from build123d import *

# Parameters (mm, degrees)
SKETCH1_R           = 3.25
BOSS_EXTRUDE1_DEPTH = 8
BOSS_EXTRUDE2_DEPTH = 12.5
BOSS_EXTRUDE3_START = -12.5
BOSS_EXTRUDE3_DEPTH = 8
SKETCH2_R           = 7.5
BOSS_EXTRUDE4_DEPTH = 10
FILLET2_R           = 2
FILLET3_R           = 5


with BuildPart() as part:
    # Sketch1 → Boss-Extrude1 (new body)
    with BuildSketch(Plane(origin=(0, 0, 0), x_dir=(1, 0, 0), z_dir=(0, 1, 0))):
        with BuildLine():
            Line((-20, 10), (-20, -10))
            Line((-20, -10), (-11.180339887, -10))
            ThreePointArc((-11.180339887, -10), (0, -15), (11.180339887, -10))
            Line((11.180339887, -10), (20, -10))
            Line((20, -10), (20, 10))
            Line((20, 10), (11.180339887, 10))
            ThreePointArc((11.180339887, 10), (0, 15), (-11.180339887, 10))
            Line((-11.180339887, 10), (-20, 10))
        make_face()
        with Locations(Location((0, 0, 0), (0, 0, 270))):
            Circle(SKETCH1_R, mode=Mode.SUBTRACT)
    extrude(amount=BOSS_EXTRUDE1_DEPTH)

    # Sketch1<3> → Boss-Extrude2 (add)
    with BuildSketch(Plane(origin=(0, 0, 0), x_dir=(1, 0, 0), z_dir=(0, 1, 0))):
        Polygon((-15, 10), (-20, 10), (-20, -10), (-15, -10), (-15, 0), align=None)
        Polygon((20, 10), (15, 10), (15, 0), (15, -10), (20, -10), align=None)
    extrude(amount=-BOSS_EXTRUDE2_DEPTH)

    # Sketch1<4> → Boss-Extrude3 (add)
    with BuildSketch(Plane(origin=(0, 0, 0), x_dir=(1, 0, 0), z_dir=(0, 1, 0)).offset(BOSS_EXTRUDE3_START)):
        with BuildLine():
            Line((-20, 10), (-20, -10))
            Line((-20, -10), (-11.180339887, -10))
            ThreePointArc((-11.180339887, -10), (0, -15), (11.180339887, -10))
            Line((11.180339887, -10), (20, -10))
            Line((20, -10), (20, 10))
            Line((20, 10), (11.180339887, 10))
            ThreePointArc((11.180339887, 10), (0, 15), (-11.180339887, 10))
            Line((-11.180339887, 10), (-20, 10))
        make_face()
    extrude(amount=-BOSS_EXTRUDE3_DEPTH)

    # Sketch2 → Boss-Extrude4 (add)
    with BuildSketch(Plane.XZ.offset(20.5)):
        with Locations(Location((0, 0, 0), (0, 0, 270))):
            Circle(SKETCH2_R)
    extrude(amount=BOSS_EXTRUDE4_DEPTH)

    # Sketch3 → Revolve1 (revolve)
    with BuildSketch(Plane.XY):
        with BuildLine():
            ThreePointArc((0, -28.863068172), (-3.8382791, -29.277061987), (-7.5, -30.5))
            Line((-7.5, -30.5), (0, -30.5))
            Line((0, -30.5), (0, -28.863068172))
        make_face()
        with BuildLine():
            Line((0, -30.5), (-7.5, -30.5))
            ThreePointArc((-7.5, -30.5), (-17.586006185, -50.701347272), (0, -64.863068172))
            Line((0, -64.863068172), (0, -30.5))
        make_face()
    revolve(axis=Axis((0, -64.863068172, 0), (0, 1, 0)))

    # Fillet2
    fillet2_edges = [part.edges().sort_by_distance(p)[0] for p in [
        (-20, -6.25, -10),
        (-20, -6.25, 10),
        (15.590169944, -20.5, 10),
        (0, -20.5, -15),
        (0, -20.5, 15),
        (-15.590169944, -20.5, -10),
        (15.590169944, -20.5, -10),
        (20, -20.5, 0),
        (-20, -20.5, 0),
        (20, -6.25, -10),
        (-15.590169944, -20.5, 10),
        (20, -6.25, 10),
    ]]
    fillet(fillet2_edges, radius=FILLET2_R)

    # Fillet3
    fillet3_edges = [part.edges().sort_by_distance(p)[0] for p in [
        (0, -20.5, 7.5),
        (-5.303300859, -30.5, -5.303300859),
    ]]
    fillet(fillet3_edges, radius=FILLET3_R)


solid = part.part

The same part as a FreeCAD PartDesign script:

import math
import FreeCAD as App
import Part
import Sketcher
from FreeCAD import Vector
Q = App.Units.Quantity


def edges_at(feature, points):
    """Names of the edges that pass closest to the given points."""
    edges = feature.Shape.Edges
    near = lambda p: min(range(len(edges)), key=lambda i: edges[i].distToShape(Part.Vertex(*p))[0])
    return sorted({f"Edge{near(p) + 1}" for p in points})


def add_polygon(sketch, points):
    """Adds a closed chain of lines whose ends are joined by coincident constraints."""
    first, n = sketch.GeometryCount, len(points)
    for a, b in zip(points, points[1:] + points[:1]):
        sketch.addGeometry(Part.LineSegment(App.Vector(*a, 0), App.Vector(*b, 0)), False)
    for i in range(n):
        sketch.addConstraint(Sketcher.Constraint("Coincident", first + i, 2, first + (i + 1) % n, 1))

doc = App.newDocument("Part")
body = doc.addObject("PartDesign::Body", "Body")

sketch1 = doc.addObject("Sketcher::SketchObject", "Sketch")
body.addObject(sketch1)
sketch1.AttachmentSupport = (doc.XZ_Plane, [""])
sketch1.MapMode = "FlatFace"
sketch1.addGeometry([
    Part.LineSegment(Vector(-20, -10, 0), Vector(-20, 10, 0)),
    Part.LineSegment(Vector(-20, 10, 0), Vector(-11.2, 10, 0)),
    Part.ArcOfCircle(Part.Circle(Vector(0, 0, 0), Vector(0, 0, 1), 15), math.radians(42), math.radians(138)),
    Part.LineSegment(Vector(11.2, 10, 0), Vector(20, 10, 0)),
    Part.LineSegment(Vector(20, 10, 0), Vector(20, -10, 0)),
    Part.LineSegment(Vector(20, -10, 0), Vector(11.2, -10, 0)),
    Part.ArcOfCircle(Part.Circle(Vector(0, 0, 0), Vector(0, 0, 1), 15), math.radians(-138), math.radians(-42)),
    Part.LineSegment(Vector(-11.2, -10, 0), Vector(-20, -10, 0)),
    Part.Circle(Vector(0, 0, 0), Vector(0, 0, 1), 3.2),
], False)
sketch1.addConstraint([
    Sketcher.Constraint("Coincident", 0, 2, 1, 1),
    Sketcher.Constraint("Coincident", 1, 2, 2, 2),
    Sketcher.Constraint("Coincident", 2, 1, 3, 1),
    Sketcher.Constraint("Coincident", 3, 2, 4, 1),
    Sketcher.Constraint("Coincident", 4, 2, 5, 1),
    Sketcher.Constraint("Coincident", 5, 2, 6, 2),
    Sketcher.Constraint("Coincident", 6, 1, 7, 1),
    Sketcher.Constraint("Coincident", 7, 2, 0, 1),
    Sketcher.Constraint("Vertical", 0),
    Sketcher.Constraint("Horizontal", 1),
    Sketcher.Constraint("Horizontal", 3),
    Sketcher.Constraint("Vertical", 4),
    Sketcher.Constraint("Horizontal", 5),
    Sketcher.Constraint("Horizontal", 7),
    Sketcher.Constraint("Coincident", 2, 3, -1, 1),
    Sketcher.Constraint("Coincident", 6, 3, -1, 1),
    Sketcher.Constraint("Coincident", 8, 3, -1, 1),
    Sketcher.Constraint("Equal", 2, 6),
    Sketcher.Constraint("Symmetric", 0, 2, 4, 2, -1, 1),
    Sketcher.Constraint("Horizontal", 1, 2, 2, 1),
    Sketcher.Constraint("Horizontal", 5, 2, 6, 1),
    Sketcher.Constraint("Radius", 2, Q("15 mm")),
    Sketcher.Constraint("Diameter", 8, Q("6.5 mm")),
    Sketcher.Constraint("DistanceY", 0, 1, 0, 2, Q("20 mm")),
    Sketcher.Constraint("DistanceX", 0, 2, -1, 1, Q("20 mm")),
])
pad1 = doc.addObject("PartDesign::Pad", "Pad")
body.addObject(pad1)
pad1.Profile = sketch1
pad1.Length = 8
pad1.Reversed = True

sketch2 = doc.addObject("Sketcher::SketchObject", "Sketch001")
body.addObject(sketch2)
sketch2.AttachmentSupport = (doc.XZ_Plane, [""])
sketch2.MapMode = "FlatFace"
add_polygon(sketch2, [(-15, -10), (-20, -10), (-20, 10), (-15, 10)])
add_polygon(sketch2, [(20, -10), (15, -10), (15, 10), (20, 10)])
sketch2.addConstraint([
    Sketcher.Constraint("Horizontal", 0),
    Sketcher.Constraint("Vertical", 1),
    Sketcher.Constraint("Horizontal", 2),
    Sketcher.Constraint("Vertical", 3),
    Sketcher.Constraint("Horizontal", 4),
    Sketcher.Constraint("Vertical", 5),
    Sketcher.Constraint("Horizontal", 6),
    Sketcher.Constraint("Vertical", 7),
    Sketcher.Constraint("Symmetric", 2, 2, 4, 2, -1, 1),
    Sketcher.Constraint("Symmetric", 0, 2, 6, 2, -1, 1),
    Sketcher.Constraint("Horizontal", 3, 2, 4, 2),
    Sketcher.Constraint("DistanceX", 0, 2, 0, 1, Q("5 mm")),
    Sketcher.Constraint("DistanceY", 1, 1, 1, 2, Q("20 mm")),
    Sketcher.Constraint("DistanceX", 0, 2, -1, 1, Q("20 mm")),
])
pad2 = doc.addObject("PartDesign::Pad", "Pad001")
body.addObject(pad2)
pad2.Profile = sketch2
pad2.Length = 12.5

sketch3 = doc.addObject("Sketcher::SketchObject", "Sketch002")
body.addObject(sketch3)
sketch3.AttachmentSupport = (doc.XZ_Plane, [""])
sketch3.MapMode = "FlatFace"
sketch3.AttachmentOffset = App.Placement(Vector(0, 0, 12.5), App.Rotation())
sketch3.addGeometry([
    Part.LineSegment(Vector(-20, -10, 0), Vector(-20, 10, 0)),
    Part.LineSegment(Vector(-20, 10, 0), Vector(-11, 10, 0)),
    Part.ArcOfCircle(Part.Circle(Vector(0, 0, 0), Vector(0, 0, 1), 15), math.radians(42), math.radians(138)),
    Part.LineSegment(Vector(11, 10, 0), Vector(20, 10, 0)),
    Part.LineSegment(Vector(20, 10, 0), Vector(20, -10, 0)),
    Part.LineSegment(Vector(20, -10, 0), Vector(11, -10, 0)),
    Part.ArcOfCircle(Part.Circle(Vector(0, 0, 0), Vector(0, 0, 1), 15), math.radians(-138), math.radians(-42)),
    Part.LineSegment(Vector(-11, -10, 0), Vector(-20, -10, 0)),
], False)
sketch3.addConstraint([
    Sketcher.Constraint("Coincident", 0, 2, 1, 1),
    Sketcher.Constraint("Coincident", 1, 2, 2, 2),
    Sketcher.Constraint("Coincident", 2, 1, 3, 1),
    Sketcher.Constraint("Coincident", 3, 2, 4, 1),
    Sketcher.Constraint("Coincident", 4, 2, 5, 1),
    Sketcher.Constraint("Coincident", 5, 2, 6, 2),
    Sketcher.Constraint("Coincident", 6, 1, 7, 1),
    Sketcher.Constraint("Coincident", 7, 2, 0, 1),
    Sketcher.Constraint("Vertical", 0),
    Sketcher.Constraint("Horizontal", 1),
    Sketcher.Constraint("Horizontal", 3),
    Sketcher.Constraint("Vertical", 4),
    Sketcher.Constraint("Horizontal", 5),
    Sketcher.Constraint("Horizontal", 7),
    Sketcher.Constraint("Coincident", 2, 3, -1, 1),
    Sketcher.Constraint("Coincident", 6, 3, -1, 1),
    Sketcher.Constraint("Equal", 2, 6),
    Sketcher.Constraint("Symmetric", 0, 2, 4, 2, -1, 1),
    Sketcher.Constraint("Horizontal", 1, 2, 2, 1),
    Sketcher.Constraint("Horizontal", 5, 2, 6, 1),
    Sketcher.Constraint("Radius", 2, Q("15 mm")),
    Sketcher.Constraint("DistanceY", 0, 1, 0, 2, Q("20 mm")),
    Sketcher.Constraint("DistanceX", 0, 2, -1, 1, Q("20 mm")),
])
pad3 = doc.addObject("PartDesign::Pad", "Pad002")
body.addObject(pad3)
pad3.Profile = sketch3
pad3.Length = 8

sketch4 = doc.addObject("Sketcher::SketchObject", "Sketch003")
body.addObject(sketch4)
sketch4.AttachmentSupport = (doc.XZ_Plane, [""])
sketch4.MapMode = "FlatFace"
sketch4.AttachmentOffset = App.Placement(Vector(0, 0, 20.5), App.Rotation())
sketch4.addGeometry(Part.Circle(Vector(0, 0, 0), Vector(0, 0, 1), 8), False)
sketch4.addConstraint([
    Sketcher.Constraint("Coincident", 0, 3, -1, 1),
    Sketcher.Constraint("Diameter", 0, Q("15 mm")),
])
pad4 = doc.addObject("PartDesign::Pad", "Pad003")
body.addObject(pad4)
pad4.Profile = sketch4
pad4.Length = 10

sketch5 = doc.addObject("Sketcher::SketchObject", "Sketch004")
body.addObject(sketch5)
sketch5.AttachmentSupport = (doc.XY_Plane, [""])
sketch5.MapMode = "FlatFace"
sketch5.addGeometry([
    Part.ArcOfCircle(Part.Circle(Vector(0, -47, 0), Vector(0, 0, 1), 18), math.radians(90), math.radians(115)),
    Part.ArcOfCircle(Part.Circle(Vector(0, -47, 0), Vector(0, 0, 1), 18), math.radians(115), math.radians(270)),
    Part.LineSegment(Vector(0, -65, 0), Vector(0, -29, 0)),
], False)
sketch5.addConstraint([
    Sketcher.Constraint("Tangent", 0, 2, 1, 1),
    Sketcher.Constraint("Coincident", 1, 2, 2, 1),
    Sketcher.Constraint("Coincident", 2, 2, 0, 1),
    Sketcher.Constraint("Vertical", 2),
    Sketcher.Constraint("Equal", 0, 1),
    Sketcher.Constraint("PointOnObject", 0, 3, -2),
    Sketcher.Constraint("PointOnObject", 1, 2, -2),
    Sketcher.Constraint("Radius", 0, Q("18 mm")),
    Sketcher.Constraint("DistanceX", 0, 2, -1, 1, Q("7.5 mm")),
    Sketcher.Constraint("DistanceY", 0, 2, -1, 1, Q("30.5 mm")),
])
revolution = doc.addObject("PartDesign::Revolution", "Revolution")
body.addObject(revolution)
revolution.Profile = sketch5
revolution.ReferenceAxis = (sketch5, ["V_Axis"])
revolution.Angle = 360
doc.recompute()

fillet = doc.addObject("PartDesign::Fillet", "Fillet")
body.addObject(fillet)
fillet.Base = (revolution, edges_at(revolution, [
    (-20, -6.25, -10),
    (-20, -6.25, 10),
    (15.59, -20.5, 10),
    (0, -20.5, -15),
    (0, -20.5, 15),
    (-15.59, -20.5, -10),
    (15.59, -20.5, -10),
    (20, -20.5, 0),
    (-20, -20.5, 0),
    (20, -6.25, -10),
    (-15.59, -20.5, 10),
    (20, -6.25, 10),
]))
fillet.Radius = 2
doc.recompute()

fillet2 = doc.addObject("PartDesign::Fillet", "Fillet001")
body.addObject(fillet2)
fillet2.Base = (fillet, edges_at(fillet, [(0, -20.5, 7.5), (-5.303, -30.5, -5.303)]))
fillet2.Radius = 5

doc.recompute()
